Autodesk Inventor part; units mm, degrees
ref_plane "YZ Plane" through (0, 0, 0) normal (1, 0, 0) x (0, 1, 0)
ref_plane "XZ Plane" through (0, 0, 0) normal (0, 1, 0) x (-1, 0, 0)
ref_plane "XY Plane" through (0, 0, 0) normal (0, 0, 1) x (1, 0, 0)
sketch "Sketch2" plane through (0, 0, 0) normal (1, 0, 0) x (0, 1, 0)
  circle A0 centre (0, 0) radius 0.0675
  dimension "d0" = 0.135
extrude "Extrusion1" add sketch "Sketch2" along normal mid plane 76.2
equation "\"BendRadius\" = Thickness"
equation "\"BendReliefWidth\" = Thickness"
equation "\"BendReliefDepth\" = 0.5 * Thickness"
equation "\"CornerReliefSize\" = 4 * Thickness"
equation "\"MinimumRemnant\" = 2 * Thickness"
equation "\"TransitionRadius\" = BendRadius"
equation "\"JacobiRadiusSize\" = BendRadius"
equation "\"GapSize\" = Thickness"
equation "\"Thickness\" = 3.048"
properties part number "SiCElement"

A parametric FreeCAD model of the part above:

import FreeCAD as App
import Part
import Sketcher
Q = App.Units.Quantity

doc = App.newDocument("Part")
body = doc.addObject("PartDesign::Body", "Body")

sketch1 = body.newObject("Sketcher::SketchObject", "Sketch")
sketch1.AttachmentSupport = (doc.getObject("YZ_Plane"), [""])
sketch1.MapMode = "FlatFace"
sketch1.addGeometry(Part.Circle(App.Vector(0, 0, 0), App.Vector(0, 0, 1), 0.0675), False)
sketch1.addConstraint([
    Sketcher.Constraint("Coincident", 0, 3, -1, 1),
    Sketcher.Constraint("Diameter", 0, 0.135),
])
pad1 = body.newObject("PartDesign::Pad", "Pad")
pad1.Profile = sketch1
pad1.Length = Q("3 in")
pad1.Midplane = True

doc.recompute()
